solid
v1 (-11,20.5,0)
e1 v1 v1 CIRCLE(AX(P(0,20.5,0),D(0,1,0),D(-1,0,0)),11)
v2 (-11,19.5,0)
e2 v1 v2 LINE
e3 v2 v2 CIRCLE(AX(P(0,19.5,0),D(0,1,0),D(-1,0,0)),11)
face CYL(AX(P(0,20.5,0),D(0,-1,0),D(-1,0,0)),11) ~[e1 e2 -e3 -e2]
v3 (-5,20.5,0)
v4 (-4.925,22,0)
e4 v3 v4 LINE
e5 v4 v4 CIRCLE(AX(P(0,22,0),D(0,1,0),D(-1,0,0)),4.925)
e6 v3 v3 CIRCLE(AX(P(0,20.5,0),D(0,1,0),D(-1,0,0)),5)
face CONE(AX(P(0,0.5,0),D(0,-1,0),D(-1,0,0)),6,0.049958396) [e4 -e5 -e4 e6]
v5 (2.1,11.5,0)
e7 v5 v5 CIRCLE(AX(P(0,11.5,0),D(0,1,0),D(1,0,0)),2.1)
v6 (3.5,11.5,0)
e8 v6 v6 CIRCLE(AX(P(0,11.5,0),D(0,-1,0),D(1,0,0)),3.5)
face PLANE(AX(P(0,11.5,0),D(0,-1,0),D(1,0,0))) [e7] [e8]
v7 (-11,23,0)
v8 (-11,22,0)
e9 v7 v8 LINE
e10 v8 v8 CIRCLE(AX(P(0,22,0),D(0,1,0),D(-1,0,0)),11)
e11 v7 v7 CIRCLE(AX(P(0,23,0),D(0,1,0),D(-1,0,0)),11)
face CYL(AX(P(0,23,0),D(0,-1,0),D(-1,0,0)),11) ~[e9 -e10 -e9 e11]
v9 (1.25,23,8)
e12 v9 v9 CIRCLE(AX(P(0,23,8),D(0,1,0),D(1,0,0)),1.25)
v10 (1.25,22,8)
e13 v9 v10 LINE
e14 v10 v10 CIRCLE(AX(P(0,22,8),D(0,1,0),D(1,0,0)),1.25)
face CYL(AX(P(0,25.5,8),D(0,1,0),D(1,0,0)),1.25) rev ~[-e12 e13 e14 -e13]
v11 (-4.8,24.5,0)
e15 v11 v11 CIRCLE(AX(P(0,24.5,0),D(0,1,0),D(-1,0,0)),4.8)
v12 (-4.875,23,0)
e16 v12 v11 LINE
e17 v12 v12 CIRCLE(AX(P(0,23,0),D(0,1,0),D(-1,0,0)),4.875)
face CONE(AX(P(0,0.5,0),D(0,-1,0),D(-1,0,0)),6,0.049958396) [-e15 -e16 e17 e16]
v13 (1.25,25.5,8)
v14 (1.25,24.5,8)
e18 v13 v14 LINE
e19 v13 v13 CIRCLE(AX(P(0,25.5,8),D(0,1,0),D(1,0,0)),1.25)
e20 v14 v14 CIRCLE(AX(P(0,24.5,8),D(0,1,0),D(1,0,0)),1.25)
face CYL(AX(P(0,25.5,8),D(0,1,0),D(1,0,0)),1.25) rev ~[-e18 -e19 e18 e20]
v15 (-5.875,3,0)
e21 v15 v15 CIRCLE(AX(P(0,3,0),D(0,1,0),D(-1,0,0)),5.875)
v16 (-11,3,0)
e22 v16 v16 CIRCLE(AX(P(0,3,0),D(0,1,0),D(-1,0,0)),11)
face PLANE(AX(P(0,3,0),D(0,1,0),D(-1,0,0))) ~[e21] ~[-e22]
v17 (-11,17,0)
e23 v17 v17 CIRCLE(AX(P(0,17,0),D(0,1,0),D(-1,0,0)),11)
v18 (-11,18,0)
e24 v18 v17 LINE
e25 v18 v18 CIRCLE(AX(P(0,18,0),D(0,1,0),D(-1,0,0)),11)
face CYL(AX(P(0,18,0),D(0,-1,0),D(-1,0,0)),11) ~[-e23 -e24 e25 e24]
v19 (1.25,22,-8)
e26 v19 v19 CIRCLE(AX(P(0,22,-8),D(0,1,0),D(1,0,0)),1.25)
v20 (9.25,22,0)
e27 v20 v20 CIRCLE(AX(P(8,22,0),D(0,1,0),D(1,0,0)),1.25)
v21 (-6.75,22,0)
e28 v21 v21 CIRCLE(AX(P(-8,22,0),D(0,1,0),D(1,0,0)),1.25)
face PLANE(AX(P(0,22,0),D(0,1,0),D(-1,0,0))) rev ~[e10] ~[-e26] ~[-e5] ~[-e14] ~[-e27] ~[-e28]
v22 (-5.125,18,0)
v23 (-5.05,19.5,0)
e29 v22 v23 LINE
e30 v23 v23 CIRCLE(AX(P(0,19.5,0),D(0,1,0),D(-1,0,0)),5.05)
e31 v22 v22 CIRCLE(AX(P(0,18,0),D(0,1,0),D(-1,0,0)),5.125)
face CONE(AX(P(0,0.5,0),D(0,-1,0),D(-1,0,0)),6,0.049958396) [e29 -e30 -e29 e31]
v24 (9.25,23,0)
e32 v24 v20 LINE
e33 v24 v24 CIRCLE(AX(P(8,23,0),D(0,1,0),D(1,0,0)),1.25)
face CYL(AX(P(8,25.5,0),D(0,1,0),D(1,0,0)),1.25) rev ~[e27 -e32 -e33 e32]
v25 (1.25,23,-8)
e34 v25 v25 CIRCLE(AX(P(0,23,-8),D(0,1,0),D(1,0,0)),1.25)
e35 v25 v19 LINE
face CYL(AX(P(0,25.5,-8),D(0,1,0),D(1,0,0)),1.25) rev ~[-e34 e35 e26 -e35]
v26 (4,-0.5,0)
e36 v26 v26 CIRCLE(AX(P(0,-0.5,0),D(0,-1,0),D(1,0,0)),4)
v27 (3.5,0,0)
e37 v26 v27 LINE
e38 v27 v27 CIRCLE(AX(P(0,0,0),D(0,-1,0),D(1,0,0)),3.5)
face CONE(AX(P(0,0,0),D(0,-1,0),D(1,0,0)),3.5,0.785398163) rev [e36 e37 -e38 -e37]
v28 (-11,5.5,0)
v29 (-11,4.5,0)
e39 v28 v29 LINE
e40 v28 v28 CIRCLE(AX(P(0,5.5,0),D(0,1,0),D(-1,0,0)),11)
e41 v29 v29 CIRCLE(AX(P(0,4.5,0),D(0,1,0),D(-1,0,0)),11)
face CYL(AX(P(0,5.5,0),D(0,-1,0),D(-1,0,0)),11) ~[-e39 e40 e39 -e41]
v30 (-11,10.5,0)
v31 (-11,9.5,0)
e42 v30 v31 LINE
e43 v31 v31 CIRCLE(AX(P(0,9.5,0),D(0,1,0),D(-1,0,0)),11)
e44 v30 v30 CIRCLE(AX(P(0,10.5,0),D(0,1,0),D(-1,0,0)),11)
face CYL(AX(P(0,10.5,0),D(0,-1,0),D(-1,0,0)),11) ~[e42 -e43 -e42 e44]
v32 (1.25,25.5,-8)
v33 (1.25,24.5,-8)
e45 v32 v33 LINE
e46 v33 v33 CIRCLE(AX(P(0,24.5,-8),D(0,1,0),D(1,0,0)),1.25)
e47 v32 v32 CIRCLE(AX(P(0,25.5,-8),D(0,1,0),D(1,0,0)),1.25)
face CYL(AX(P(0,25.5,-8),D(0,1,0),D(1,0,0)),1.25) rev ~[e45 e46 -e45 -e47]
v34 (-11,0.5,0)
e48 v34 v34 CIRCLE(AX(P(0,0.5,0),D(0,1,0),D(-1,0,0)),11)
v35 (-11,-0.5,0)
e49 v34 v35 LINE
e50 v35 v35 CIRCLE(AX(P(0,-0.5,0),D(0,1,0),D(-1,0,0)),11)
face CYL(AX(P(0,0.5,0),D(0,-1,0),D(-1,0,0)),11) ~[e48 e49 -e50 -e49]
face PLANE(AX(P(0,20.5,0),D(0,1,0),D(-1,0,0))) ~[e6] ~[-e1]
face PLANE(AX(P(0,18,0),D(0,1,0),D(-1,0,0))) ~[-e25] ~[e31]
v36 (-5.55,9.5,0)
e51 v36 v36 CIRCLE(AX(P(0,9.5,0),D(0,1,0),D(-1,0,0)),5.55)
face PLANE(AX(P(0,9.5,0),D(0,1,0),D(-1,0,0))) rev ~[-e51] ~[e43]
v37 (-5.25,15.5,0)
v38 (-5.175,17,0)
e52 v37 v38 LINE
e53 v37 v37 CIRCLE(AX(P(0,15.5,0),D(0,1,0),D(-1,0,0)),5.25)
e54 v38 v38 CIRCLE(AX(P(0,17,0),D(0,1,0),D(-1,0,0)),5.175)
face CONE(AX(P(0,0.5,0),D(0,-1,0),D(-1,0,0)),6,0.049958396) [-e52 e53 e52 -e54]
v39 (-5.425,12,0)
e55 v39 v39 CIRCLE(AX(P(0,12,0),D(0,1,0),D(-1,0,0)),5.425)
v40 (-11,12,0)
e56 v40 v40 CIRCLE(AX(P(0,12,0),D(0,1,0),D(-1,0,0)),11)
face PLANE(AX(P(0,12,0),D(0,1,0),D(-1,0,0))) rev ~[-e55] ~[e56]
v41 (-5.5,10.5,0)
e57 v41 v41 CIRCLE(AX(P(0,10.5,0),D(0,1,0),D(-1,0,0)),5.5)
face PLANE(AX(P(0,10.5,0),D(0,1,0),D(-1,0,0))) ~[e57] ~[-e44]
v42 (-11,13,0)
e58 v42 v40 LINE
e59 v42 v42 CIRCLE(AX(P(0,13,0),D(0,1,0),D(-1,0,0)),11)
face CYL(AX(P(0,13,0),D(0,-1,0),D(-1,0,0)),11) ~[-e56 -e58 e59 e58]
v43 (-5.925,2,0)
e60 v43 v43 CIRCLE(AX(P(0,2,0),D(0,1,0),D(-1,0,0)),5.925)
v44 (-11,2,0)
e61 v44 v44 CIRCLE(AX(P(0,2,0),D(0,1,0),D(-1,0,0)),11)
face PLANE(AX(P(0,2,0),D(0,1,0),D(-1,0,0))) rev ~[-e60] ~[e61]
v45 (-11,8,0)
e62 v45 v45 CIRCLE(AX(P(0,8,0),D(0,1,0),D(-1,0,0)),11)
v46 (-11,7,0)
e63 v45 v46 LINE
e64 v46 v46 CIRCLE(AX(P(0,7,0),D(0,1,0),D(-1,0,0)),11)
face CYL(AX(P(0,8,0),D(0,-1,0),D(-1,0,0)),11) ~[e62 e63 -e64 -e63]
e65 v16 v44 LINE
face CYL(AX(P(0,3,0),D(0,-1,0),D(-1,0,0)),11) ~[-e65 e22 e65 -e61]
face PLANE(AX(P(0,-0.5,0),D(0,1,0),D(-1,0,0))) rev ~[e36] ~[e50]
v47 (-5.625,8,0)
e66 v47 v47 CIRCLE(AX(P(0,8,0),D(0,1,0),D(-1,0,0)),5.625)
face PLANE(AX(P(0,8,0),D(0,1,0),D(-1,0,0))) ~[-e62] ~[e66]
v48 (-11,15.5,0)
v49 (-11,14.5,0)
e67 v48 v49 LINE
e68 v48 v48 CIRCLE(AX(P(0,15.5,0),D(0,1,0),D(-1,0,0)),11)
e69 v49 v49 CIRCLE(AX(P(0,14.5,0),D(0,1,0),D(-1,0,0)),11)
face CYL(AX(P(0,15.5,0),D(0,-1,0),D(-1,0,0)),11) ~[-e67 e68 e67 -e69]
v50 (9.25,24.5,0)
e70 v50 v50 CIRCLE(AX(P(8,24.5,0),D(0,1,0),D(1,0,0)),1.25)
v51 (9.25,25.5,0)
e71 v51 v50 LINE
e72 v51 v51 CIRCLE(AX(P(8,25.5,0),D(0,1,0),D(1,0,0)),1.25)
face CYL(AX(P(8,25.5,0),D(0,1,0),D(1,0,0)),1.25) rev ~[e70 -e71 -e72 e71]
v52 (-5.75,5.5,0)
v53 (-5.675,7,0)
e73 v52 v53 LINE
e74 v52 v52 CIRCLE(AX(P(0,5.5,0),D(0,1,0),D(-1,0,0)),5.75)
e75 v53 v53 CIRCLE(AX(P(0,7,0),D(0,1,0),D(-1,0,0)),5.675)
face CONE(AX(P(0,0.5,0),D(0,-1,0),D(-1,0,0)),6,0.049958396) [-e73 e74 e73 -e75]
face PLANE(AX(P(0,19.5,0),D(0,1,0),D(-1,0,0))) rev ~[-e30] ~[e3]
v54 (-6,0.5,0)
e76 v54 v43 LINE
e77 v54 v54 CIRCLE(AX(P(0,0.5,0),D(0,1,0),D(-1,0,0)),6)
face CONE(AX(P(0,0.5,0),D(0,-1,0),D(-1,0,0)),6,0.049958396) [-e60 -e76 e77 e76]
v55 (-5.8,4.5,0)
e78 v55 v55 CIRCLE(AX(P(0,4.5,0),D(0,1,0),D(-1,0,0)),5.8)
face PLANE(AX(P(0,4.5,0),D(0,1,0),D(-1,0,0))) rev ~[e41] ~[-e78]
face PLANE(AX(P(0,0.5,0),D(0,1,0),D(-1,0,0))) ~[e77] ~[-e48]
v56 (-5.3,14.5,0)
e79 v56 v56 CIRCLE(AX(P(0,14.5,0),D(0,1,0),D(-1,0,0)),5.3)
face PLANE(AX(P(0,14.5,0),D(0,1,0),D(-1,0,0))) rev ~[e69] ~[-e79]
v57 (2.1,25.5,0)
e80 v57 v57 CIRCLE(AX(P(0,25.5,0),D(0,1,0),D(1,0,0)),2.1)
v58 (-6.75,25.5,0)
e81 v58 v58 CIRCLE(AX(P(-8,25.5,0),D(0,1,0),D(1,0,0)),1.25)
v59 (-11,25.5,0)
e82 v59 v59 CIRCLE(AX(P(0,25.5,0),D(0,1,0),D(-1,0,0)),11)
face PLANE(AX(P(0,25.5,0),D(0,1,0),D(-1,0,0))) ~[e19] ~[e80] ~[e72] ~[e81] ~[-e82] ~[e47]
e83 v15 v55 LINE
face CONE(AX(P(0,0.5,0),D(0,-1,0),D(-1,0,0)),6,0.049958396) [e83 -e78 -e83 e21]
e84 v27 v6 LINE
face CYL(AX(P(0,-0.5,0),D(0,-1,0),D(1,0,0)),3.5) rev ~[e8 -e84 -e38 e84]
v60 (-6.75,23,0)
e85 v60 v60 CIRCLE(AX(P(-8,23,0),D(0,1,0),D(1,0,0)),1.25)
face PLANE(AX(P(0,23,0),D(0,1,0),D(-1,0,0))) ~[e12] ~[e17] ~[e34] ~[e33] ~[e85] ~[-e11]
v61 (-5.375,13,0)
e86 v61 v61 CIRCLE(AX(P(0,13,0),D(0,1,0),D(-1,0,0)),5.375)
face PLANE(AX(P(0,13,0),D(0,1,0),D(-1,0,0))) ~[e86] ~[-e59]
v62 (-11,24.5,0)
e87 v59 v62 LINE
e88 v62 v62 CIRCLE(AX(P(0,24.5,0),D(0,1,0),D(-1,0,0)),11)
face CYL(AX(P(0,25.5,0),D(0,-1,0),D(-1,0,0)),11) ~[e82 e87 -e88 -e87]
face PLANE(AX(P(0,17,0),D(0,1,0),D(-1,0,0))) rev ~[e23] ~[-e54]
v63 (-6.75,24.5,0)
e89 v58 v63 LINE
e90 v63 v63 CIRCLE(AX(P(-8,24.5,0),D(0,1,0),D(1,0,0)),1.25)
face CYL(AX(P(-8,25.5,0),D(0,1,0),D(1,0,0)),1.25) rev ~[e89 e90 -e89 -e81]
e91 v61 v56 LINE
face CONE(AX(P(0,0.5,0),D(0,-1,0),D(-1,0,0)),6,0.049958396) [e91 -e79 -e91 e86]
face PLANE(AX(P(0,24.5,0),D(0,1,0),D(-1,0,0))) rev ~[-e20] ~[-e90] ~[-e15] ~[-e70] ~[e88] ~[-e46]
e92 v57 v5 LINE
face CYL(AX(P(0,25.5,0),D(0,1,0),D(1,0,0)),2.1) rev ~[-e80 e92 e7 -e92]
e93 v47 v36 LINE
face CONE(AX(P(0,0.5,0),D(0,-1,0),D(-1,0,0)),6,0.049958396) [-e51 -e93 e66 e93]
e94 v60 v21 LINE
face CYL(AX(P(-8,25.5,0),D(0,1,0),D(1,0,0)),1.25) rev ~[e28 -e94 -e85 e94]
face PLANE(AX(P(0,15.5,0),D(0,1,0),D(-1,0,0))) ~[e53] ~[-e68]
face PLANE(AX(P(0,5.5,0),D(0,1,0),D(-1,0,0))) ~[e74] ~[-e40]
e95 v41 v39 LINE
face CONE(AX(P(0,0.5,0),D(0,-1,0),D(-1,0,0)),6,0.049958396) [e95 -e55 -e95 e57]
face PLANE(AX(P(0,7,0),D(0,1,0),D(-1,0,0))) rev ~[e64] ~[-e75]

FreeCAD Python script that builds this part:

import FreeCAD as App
import Part
import Sketcher


def edges_at(feature, points):
    """Names of the edges that pass closest to the given points."""
    edges = feature.Shape.Edges
    near = lambda p: min(range(len(edges)), key=lambda i: edges[i].distToShape(Part.Vertex(*p))[0])
    return sorted({f"Edge{near(p) + 1}" for p in points})


def add_polygon(sketch, points):
    """Adds a closed chain of lines whose ends are joined by coincident constraints."""
    first, n = sketch.GeometryCount, len(points)
    for a, b in zip(points, points[1:] + points[:1]):
        sketch.addGeometry(Part.LineSegment(App.Vector(*a, 0), App.Vector(*b, 0)), False)
    for i in range(n):
        sketch.addConstraint(Sketcher.Constraint("Coincident", first + i, 2, first + (i + 1) % n, 1))

doc = App.newDocument("Part")
body = doc.addObject("PartDesign::Body", "Body")

# Sketch on XY plane
sketch1 = doc.addObject("Sketcher::SketchObject", "Sketch")
body.addObject(sketch1)
sketch1.AttachmentSupport = (doc.XY_Plane, [""])
sketch1.MapMode = "FlatFace"
add_polygon(sketch1, [(0, -0.5), (0, 25.5), (-11, 25.5), (-11, 24.5), (-4.8, 24.5), (-4.875, 23), (-11, 23), (-11, 22), (-4.925, 22), (-5, 20.5), (-11, 20.5), (-11, 19.5), (-5.05, 19.5), (-5.125, 18), (-11, 18), (-11, 17), (-5.175, 17), (-5.25, 15.5), (-11, 15.5), (-11, 14.5), (-5.3, 14.5), (-5.375, 13), (-11, 13), (-11, 12), (-5.425, 12), (-5.5, 10.5), (-11, 10.5), (-11, 9.5), (-5.55, 9.5), (-5.625, 8), (-11, 8), (-11, 7), (-5.675, 7), (-5.75, 5.5), (-11, 5.5), (-11, 4.5), (-5.8, 4.5), (-5.875, 3), (-11, 3), (-11, 2), (-5.925, 2), (-6, 0.5), (-11, 0.5), (-11, -0.5)])  # lines 0-43
sketch1.addConstraint(Sketcher.Constraint("Vertical", 0))
sketch1.addConstraint(Sketcher.Constraint("Horizontal", 1))
sketch1.addConstraint(Sketcher.Constraint("Vertical", 2))
sketch1.addConstraint(Sketcher.Constraint("Horizontal", 3))
sketch1.addConstraint(Sketcher.Constraint("Horizontal", 5))
sketch1.addConstraint(Sketcher.Constraint("Vertical", 6))
sketch1.addConstraint(Sketcher.Constraint("Horizontal", 7))
sketch1.addConstraint(Sketcher.Constraint("Horizontal", 9))
sketch1.addConstraint(Sketcher.Constraint("Vertical", 10))
sketch1.addConstraint(Sketcher.Constraint("Horizontal", 11))
sketch1.addConstraint(Sketcher.Constraint("Horizontal", 13))
sketch1.addConstraint(Sketcher.Constraint("Vertical", 14))
sketch1.addConstraint(Sketcher.Constraint("Horizontal", 15))
sketch1.addConstraint(Sketcher.Constraint("Horizontal", 17))
sketch1.addConstraint(Sketcher.Constraint("Vertical", 18))
sketch1.addConstraint(Sketcher.Constraint("Horizontal", 19))
sketch1.addConstraint(Sketcher.Constraint("Horizontal", 21))
sketch1.addConstraint(Sketcher.Constraint("Vertical", 22))
sketch1.addConstraint(Sketcher.Constraint("Horizontal", 23))
sketch1.addConstraint(Sketcher.Constraint("Horizontal", 25))
sketch1.addConstraint(Sketcher.Constraint("Vertical", 26))
sketch1.addConstraint(Sketcher.Constraint("Horizontal", 27))
sketch1.addConstraint(Sketcher.Constraint("Horizontal", 29))
sketch1.addConstraint(Sketcher.Constraint("Vertical", 30))
sketch1.addConstraint(Sketcher.Constraint("Horizontal", 31))
sketch1.addConstraint(Sketcher.Constraint("Horizontal", 33))
sketch1.addConstraint(Sketcher.Constraint("Vertical", 34))
sketch1.addConstraint(Sketcher.Constraint("Horizontal", 35))
sketch1.addConstraint(Sketcher.Constraint("Horizontal", 37))
sketch1.addConstraint(Sketcher.Constraint("Vertical", 38))
sketch1.addConstraint(Sketcher.Constraint("Horizontal", 39))
sketch1.addConstraint(Sketcher.Constraint("Horizontal", 41))
sketch1.addConstraint(Sketcher.Constraint("Vertical", 42))
sketch1.addConstraint(Sketcher.Constraint("Horizontal", 43))
sketch1.addConstraint(Sketcher.Constraint("PointOnObject", 0, 2, -2))
sketch1.addConstraint(Sketcher.Constraint("Parallel", 4, 8))
sketch1.addConstraint(Sketcher.Constraint("Parallel", 8, 12))
sketch1.addConstraint(Sketcher.Constraint("Parallel", 12, 16))
sketch1.addConstraint(Sketcher.Constraint("Parallel", 16, 20))
sketch1.addConstraint(Sketcher.Constraint("Parallel", 20, 24))
sketch1.addConstraint(Sketcher.Constraint("Parallel", 24, 28))
sketch1.addConstraint(Sketcher.Constraint("Parallel", 28, 32))
sketch1.addConstraint(Sketcher.Constraint("Parallel", 32, 36))
sketch1.addConstraint(Sketcher.Constraint("Parallel", 36, 40))
sketch1.addConstraint(Sketcher.Constraint("Vertical", 2, 2, 5, 2))
sketch1.addConstraint(Sketcher.Constraint("Vertical", 6, 2, 9, 2))
sketch1.addConstraint(Sketcher.Constraint("Vertical", 10, 2, 13, 2))
sketch1.addConstraint(Sketcher.Constraint("Vertical", 14, 2, 17, 2))
sketch1.addConstraint(Sketcher.Constraint("Vertical", 18, 2, 21, 2))
sketch1.addConstraint(Sketcher.Constraint("Vertical", 22, 2, 25, 2))
sketch1.addConstraint(Sketcher.Constraint("Vertical", 26, 2, 29, 2))
sketch1.addConstraint(Sketcher.Constraint("Vertical", 30, 2, 33, 2))
sketch1.addConstraint(Sketcher.Constraint("Vertical", 34, 2, 37, 2))
sketch1.addConstraint(Sketcher.Constraint("Vertical", 38, 2, 41, 2))
sketch1.addConstraint(Sketcher.Constraint("Equal", 2, 6))
sketch1.addConstraint(Sketcher.Constraint("Equal", 6, 10))
sketch1.addConstraint(Sketcher.Constraint("Equal", 10, 14))
sketch1.addConstraint(Sketcher.Constraint("Equal", 14, 18))
sketch1.addConstraint(Sketcher.Constraint("Equal", 18, 22))
sketch1.addConstraint(Sketcher.Constraint("Equal", 22, 26))
sketch1.addConstraint(Sketcher.Constraint("Equal", 26, 30))
sketch1.addConstraint(Sketcher.Constraint("Equal", 30, 34))
sketch1.addConstraint(Sketcher.Constraint("Equal", 34, 38))
sketch1.addConstraint(Sketcher.Constraint("Equal", 38, 42))
sketch1.addConstraint(Sketcher.Constraint("Equal", 4, 8))
sketch1.addConstraint(Sketcher.Constraint("Equal", 8, 12))
sketch1.addConstraint(Sketcher.Constraint("Equal", 12, 16))
sketch1.addConstraint(Sketcher.Constraint("Equal", 16, 20))
sketch1.addConstraint(Sketcher.Constraint("Equal", 20, 24))
sketch1.addConstraint(Sketcher.Constraint("Equal", 24, 28))
sketch1.addConstraint(Sketcher.Constraint("Equal", 28, 32))
sketch1.addConstraint(Sketcher.Constraint("Equal", 32, 36))
sketch1.addConstraint(Sketcher.Constraint("Equal", 36, 40))
sketch1.addConstraint(Sketcher.Constraint("DistanceY", 2, 2, 2, 1, 1.0))
sketch1.addConstraint(Sketcher.Constraint("DistanceY", -1, 1, 6, 2, 22.0))
sketch1.addConstraint(Sketcher.Constraint("DistanceY", -1, 1, 22, 2, 12.0))
sketch1.addConstraint(Sketcher.Constraint("DistanceX", 1, 2, 1, 1, 11.0))
sketch1.addConstraint(Sketcher.Constraint("DistanceX", 9, 2, 9, 1, 6.0))
sketch1.addConstraint(Sketcher.Constraint("DistanceX", 41, 2, 41, 1, 5.0))
sketch1.addConstraint(Sketcher.Constraint("DistanceX", 3, 1, 3, 2, 6.2))
sketch1.addConstraint(Sketcher.Constraint("DistanceX", 19, 1, 19, 2, 5.7))
sketch1.addConstraint(Sketcher.Constraint("DistanceX", 25, 2, 25, 1, 5.5))
sketch1.addConstraint(Sketcher.Constraint("DistanceX", 35, 1, 35, 2, 5.2))
sketch1.addConstraint(Sketcher.Constraint("DistanceX", 11, 1, 11, 2, 5.95))
sketch1.addConstraint(Sketcher.Constraint("DistanceX", 17, 2, 17, 1, 5.75))
sketch1.addConstraint(Sketcher.Constraint("DistanceX", 27, 1, 27, 2, 5.45))
sketch1.addConstraint(Sketcher.Constraint("DistanceX", 33, 2, 33, 1, 5.25))
sketch1.addConstraint(Sketcher.Constraint("DistanceX", 12, 2, 7, 2, 0.2))
revolution = doc.addObject("PartDesign::Revolution", "Revolution")
body.addObject(revolution)
revolution.Profile = sketch1
revolution.ReferenceAxis = (sketch1, ["V_Axis"])
revolution.Angle = 360

# Sketch on XZ plane
sketch2 = doc.addObject("Sketcher::SketchObject", "Sketch001")
body.addObject(sketch2)
sketch2.AttachmentSupport = (doc.XZ_Plane, [""])
sketch2.MapMode = "FlatFace"
sketch2.AttachmentOffset = App.Placement(App.Vector(0, 0, 0.5), App.Rotation())
sketch2.addGeometry(Part.Circle(App.Vector(0, 0, 0), App.Vector(0, 0, 1), 3.5), False)
sketch2.addConstraint(Sketcher.Constraint("Coincident", 0, 3, -1, 1))
sketch2.addConstraint(Sketcher.Constraint("Diameter", 0, 7.0))
pocket1 = doc.addObject("PartDesign::Pocket", "Pocket")
body.addObject(pocket1)
pocket1.Profile = sketch2
pocket1.Length = 12

# Sketch on XZ plane
sketch3 = doc.addObject("Sketcher::SketchObject", "Sketch002")
body.addObject(sketch3)
sketch3.AttachmentSupport = (doc.XZ_Plane, [""])
sketch3.MapMode = "FlatFace"
sketch3.AttachmentOffset = App.Placement(App.Vector(0, 0, -25.5), App.Rotation())
sketch3.addGeometry(Part.Circle(App.Vector(0, 0, 0), App.Vector(0, 0, 1), 2.1), False)
sketch3.addConstraint(Sketcher.Constraint("Coincident", 0, 3, -1, 1))
sketch3.addConstraint(Sketcher.Constraint("Diameter", 0, 4.2))
pocket2 = doc.addObject("PartDesign::Pocket", "Pocket001")
body.addObject(pocket2)
pocket2.Profile = sketch3
pocket2.Type = "ThroughAll"
pocket2.Reversed = True

# Sketch on XZ plane
sketch4 = doc.addObject("Sketcher::SketchObject", "Sketch003")
body.addObject(sketch4)
sketch4.AttachmentSupport = (doc.XZ_Plane, [""])
sketch4.MapMode = "FlatFace"
sketch4.AttachmentOffset = App.Placement(App.Vector(0, 0, -25.5), App.Rotation())
sketch4.addGeometry(Part.Circle(App.Vector(0, -8, 0), App.Vector(0, 0, 1), 1.25), False)
sketch4.addGeometry(Part.Circle(App.Vector(-8, 0, 0), App.Vector(0, 0, 1), 1.25), False)
sketch4.addGeometry(Part.Circle(App.Vector(0, 8, 0), App.Vector(0, 0, 1), 1.25), False)
sketch4.addGeometry(Part.Circle(App.Vector(8, 0, 0), App.Vector(0, 0, 1), 1.25), False)
sketch4.addConstraint(Sketcher.Constraint("Equal", 0, 1))
sketch4.addConstraint(Sketcher.Constraint("Equal", 1, 2))
sketch4.addConstraint(Sketcher.Constraint("Equal", 2, 3))
sketch4.addConstraint(Sketcher.Constraint("Symmetric", 0, 3, 2, 3, -1, 1))
sketch4.addConstraint(Sketcher.Constraint("Symmetric", 1, 3, 3, 3, -1, 1))
sketch4.addConstraint(Sketcher.Constraint("PointOnObject", 0, 3, -2))
sketch4.addConstraint(Sketcher.Constraint("PointOnObject", 1, 3, -1))
sketch4.addConstraint(Sketcher.Constraint("Diameter", 0, 2.5))
sketch4.addConstraint(Sketcher.Constraint("DistanceY", 0, 3, 2, 3, 16.0))
sketch4.addConstraint(Sketcher.Constraint("DistanceX", 1, 3, 3, 3, 16.0))
pocket3 = doc.addObject("PartDesign::Pocket", "Pocket002")
body.addObject(pocket3)
pocket3.Profile = sketch4
pocket3.Length = 3.5
pocket3.Reversed = True
doc.recompute()

chamfer = doc.addObject("PartDesign::Chamfer", "Chamfer")
body.addObject(chamfer)
chamfer.Base = (pocket3, edges_at(pocket3, [(-3.5, -0.5, 0)]))
chamfer.Size = 0.5

doc.recompute()
